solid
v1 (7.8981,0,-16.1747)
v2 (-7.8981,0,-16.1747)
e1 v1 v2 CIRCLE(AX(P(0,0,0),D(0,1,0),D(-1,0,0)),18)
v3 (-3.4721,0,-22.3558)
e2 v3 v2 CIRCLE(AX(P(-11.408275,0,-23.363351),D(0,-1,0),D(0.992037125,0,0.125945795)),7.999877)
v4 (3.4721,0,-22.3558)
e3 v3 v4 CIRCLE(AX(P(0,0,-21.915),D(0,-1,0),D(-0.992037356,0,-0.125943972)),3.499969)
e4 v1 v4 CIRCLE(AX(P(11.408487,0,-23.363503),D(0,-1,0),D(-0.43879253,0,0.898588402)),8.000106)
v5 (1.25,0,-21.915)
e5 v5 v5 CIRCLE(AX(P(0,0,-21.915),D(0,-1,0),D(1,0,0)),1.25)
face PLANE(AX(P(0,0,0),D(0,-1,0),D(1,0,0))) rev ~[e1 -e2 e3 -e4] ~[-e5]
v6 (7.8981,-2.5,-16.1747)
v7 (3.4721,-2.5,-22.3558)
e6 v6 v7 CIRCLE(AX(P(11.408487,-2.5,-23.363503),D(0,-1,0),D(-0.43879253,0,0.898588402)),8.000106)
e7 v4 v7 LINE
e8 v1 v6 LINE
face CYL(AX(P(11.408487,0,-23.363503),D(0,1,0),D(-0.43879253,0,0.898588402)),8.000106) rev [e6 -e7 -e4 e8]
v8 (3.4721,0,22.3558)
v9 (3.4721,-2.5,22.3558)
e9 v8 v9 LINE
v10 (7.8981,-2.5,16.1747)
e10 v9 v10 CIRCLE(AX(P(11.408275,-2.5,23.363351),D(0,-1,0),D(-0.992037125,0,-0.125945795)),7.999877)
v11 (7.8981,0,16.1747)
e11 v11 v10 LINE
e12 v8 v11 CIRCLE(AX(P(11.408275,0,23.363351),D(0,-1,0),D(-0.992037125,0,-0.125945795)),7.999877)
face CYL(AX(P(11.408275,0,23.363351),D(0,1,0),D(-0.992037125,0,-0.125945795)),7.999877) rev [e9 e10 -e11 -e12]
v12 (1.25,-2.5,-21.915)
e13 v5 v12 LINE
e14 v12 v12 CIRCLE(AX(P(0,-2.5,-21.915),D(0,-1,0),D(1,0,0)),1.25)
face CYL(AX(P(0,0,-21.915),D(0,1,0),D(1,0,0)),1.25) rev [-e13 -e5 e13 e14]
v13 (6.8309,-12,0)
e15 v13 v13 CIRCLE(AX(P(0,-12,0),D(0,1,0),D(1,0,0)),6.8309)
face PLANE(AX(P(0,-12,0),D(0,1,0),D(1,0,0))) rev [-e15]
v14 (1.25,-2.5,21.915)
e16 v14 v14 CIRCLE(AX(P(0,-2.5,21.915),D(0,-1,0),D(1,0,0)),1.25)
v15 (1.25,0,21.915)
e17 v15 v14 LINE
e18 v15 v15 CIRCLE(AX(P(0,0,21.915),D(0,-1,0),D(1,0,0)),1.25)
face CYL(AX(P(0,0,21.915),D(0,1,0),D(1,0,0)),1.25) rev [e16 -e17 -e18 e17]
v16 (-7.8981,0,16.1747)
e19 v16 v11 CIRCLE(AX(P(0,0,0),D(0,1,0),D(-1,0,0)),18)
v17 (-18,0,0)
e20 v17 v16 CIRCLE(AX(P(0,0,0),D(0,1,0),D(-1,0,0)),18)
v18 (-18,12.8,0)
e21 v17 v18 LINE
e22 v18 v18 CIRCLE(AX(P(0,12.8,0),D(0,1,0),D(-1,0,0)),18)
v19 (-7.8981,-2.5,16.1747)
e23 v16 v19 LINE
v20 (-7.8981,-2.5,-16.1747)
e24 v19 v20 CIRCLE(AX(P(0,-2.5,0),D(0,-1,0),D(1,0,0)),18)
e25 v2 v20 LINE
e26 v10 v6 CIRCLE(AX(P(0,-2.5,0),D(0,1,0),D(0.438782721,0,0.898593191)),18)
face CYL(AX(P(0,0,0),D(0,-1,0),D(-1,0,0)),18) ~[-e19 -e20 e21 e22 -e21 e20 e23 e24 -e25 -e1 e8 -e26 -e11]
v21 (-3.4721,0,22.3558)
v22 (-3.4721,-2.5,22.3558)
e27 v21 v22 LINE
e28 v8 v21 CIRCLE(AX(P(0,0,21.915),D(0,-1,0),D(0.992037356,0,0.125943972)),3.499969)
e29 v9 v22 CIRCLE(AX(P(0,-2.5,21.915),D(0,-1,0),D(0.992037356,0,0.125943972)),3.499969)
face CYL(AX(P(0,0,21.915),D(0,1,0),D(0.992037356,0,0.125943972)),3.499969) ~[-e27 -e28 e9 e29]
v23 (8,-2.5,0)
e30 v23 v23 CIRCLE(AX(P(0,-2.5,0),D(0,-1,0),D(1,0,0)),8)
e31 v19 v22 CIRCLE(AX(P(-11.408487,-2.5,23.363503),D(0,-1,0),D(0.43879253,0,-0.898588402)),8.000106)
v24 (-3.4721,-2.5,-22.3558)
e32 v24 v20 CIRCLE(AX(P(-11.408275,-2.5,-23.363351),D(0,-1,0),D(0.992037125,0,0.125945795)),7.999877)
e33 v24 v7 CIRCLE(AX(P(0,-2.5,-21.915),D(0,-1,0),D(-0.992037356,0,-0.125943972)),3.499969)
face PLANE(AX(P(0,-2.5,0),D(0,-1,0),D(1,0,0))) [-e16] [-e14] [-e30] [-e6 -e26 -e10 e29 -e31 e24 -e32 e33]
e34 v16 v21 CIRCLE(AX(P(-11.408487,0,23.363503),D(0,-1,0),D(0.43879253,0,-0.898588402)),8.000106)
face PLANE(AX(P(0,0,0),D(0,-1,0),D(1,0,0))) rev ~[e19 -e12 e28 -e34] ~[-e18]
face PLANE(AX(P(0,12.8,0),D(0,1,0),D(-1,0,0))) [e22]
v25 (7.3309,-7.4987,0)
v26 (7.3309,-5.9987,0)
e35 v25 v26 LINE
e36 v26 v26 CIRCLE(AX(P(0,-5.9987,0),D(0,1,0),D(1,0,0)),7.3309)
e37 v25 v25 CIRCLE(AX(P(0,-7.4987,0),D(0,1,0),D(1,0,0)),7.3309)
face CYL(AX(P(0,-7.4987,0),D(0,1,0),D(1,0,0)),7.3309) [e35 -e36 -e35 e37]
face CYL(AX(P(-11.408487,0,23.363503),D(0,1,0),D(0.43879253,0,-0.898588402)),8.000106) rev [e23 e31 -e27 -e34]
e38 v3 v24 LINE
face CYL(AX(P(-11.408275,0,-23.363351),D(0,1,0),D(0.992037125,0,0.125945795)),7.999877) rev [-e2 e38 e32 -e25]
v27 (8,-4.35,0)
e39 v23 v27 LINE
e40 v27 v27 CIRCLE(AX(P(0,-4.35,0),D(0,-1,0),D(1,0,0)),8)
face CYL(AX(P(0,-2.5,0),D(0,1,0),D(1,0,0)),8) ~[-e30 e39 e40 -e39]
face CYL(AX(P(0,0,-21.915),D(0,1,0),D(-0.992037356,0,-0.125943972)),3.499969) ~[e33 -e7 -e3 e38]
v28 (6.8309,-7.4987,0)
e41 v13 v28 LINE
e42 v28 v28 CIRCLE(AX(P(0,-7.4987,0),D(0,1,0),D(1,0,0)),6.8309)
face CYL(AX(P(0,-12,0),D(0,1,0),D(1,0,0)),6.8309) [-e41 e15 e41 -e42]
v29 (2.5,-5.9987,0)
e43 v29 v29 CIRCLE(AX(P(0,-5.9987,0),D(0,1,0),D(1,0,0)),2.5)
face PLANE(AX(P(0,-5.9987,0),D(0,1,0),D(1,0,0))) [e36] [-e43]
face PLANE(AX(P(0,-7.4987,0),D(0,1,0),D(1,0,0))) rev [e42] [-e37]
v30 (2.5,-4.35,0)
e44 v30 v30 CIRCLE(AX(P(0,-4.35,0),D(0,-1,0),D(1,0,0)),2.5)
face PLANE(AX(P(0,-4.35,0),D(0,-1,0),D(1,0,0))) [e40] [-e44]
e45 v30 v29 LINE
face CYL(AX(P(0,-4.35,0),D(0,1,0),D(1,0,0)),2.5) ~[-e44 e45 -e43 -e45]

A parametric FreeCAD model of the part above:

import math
import FreeCAD as App
import Part
import Sketcher

V = App.Vector


def add_polygon(sketch, points):
    """Adds a closed chain of lines whose ends are joined by coincident constraints."""
    first, n = sketch.GeometryCount, len(points)
    for a, b in zip(points, points[1:] + points[:1]):
        sketch.addGeometry(Part.LineSegment(App.Vector(*a, 0), App.Vector(*b, 0)), False)
    for i in range(n):
        sketch.addConstraint(Sketcher.Constraint("Coincident", first + i, 2, first + (i + 1) % n, 1))

doc = App.newDocument("Part")
body = doc.addObject("PartDesign::Body", "Body")

# Sketch on XZ plane
sketch1 = body.newObject("Sketcher::SketchObject", "Sketch")
sketch1.AttachmentSupport = (doc.getObject("XZ_Plane"), [""])
sketch1.MapMode = "FlatFace"
sketch1.addGeometry(Part.Circle(V(0, 0, 0), V(0, 0, 1), 18), False)
sketch1.addConstraint([
    Sketcher.Constraint("Coincident", 0, 3, -1, 1),
    Sketcher.Constraint("Diameter", 0, 36.0),
])
pad1 = body.newObject("PartDesign::Pad", "Pad")
pad1.Profile = sketch1
pad1.Length = 12.8
pad1.Reversed = True

# Sketch on XZ plane
sketch2 = body.newObject("Sketcher::SketchObject", "Sketch001")
sketch2.AttachmentSupport = (doc.getObject("XZ_Plane"), [""])
sketch2.MapMode = "FlatFace"
sketch2.addGeometry([
    Part.ArcOfCircle(Part.Circle(V(11.4084, 23.3634, 0), V(0, 0, 1), 8.000007), math.radians(-172.764386), math.radians(-116.026629)),  # 0
    Part.ArcOfCircle(Part.Circle(V(0, 21.915, 0), V(0, 0, 1), 3.499969), math.radians(7.235272), math.radians(172.764728)),  # 1
    Part.ArcOfCircle(Part.Circle(V(-11.4084, 23.3634, 0), V(0, 0, 1), 7.999976), math.radians(-63.973371), math.radians(-7.235614)),  # 2
    Part.ArcOfCircle(Part.Circle(V(0, 0, 0), V(0, 0, 1), 18), math.radians(116.02624), math.radians(243.97376)),  # 3
    Part.ArcOfCircle(Part.Circle(V(-11.4084, -23.3634, 0), V(0, 0, 1), 8.000007), math.radians(7.235614), math.radians(63.973371)),  # 4
    Part.ArcOfCircle(Part.Circle(V(0, -21.915, 0), V(0, 0, 1), 3.499969), math.radians(-172.764728), math.radians(-7.235272)),  # 5
    Part.ArcOfCircle(Part.Circle(V(11.4084, -23.3634, 0), V(0, 0, 1), 7.999976), math.radians(116.026629), math.radians(172.764386)),  # 6
    Part.ArcOfCircle(Part.Circle(V(0, 0, 0), V(0, 0, 1), 18), math.radians(-63.97376), math.radians(63.97376)),  # 7
    Part.Circle(V(0, 21.915, 0), V(0, 0, 1), 1.25),  # 8
    Part.Circle(V(0, -21.915, 0), V(0, 0, 1), 1.25),  # 9
], False)
sketch2.addConstraint([
    Sketcher.Constraint("Tangent", 0, 1, 1, 1),
    Sketcher.Constraint("Tangent", 1, 2, 2, 2),
    Sketcher.Constraint("Tangent", 2, 1, 3, 1),
    Sketcher.Constraint("Tangent", 3, 2, 4, 2),
    Sketcher.Constraint("Tangent", 4, 1, 5, 1),
    Sketcher.Constraint("Tangent", 5, 2, 6, 2),
    Sketcher.Constraint("Tangent", 6, 1, 7, 1),
    Sketcher.Constraint("Tangent", 7, 2, 0, 2),
    Sketcher.Constraint("Coincident", 3, 3, -1, 1),
    Sketcher.Constraint("Coincident", 7, 3, -1, 1),
    Sketcher.Constraint("Coincident", 8, 3, 1, 3),
    Sketcher.Constraint("Coincident", 9, 3, 5, 3),
    Sketcher.Constraint("Equal", 0, 2),
    Sketcher.Constraint("Equal", 2, 4),
    Sketcher.Constraint("Equal", 1, 5),
    Sketcher.Constraint("Equal", 4, 6),
    Sketcher.Constraint("Equal", 3, 7),
    Sketcher.Constraint("Equal", 8, 9),
    Sketcher.Constraint("Symmetric", 1, 3, 5, 3, -1, 1),
    Sketcher.Constraint("PointOnObject", 1, 3, -2),
    Sketcher.Constraint("Radius", 0, 8.0),
    Sketcher.Constraint("Diameter", 8, 2.5),
    Sketcher.Constraint("Radius", 1, 3.5),
    Sketcher.Constraint("Radius", 3, 18.0),
    Sketcher.Constraint("DistanceY", 5, 3, 1, 3, 43.83),
])
pad2 = body.newObject("PartDesign::Pad", "Pad001")
pad2.Profile = sketch2
pad2.Length = 2.5

# Sketch on XZ plane
sketch3 = body.newObject("Sketcher::SketchObject", "Sketch002")
sketch3.AttachmentSupport = (doc.getObject("XZ_Plane"), [""])
sketch3.MapMode = "FlatFace"
sketch3.AttachmentOffset = App.Placement(V(0, 0, 2.5), App.Rotation())
sketch3.addGeometry(Part.Circle(V(0, 0, 0), V(0, 0, 1), 8), False)
sketch3.addConstraint([
    Sketcher.Constraint("Coincident", 0, 3, -1, 1),
    Sketcher.Constraint("Diameter", 0, 16.0),
])
pad3 = body.newObject("PartDesign::Pad", "Pad002")
pad3.Profile = sketch3
pad3.Length = 1.85

# Sketch on XZ plane
sketch4 = body.newObject("Sketcher::SketchObject", "Sketch003")
sketch4.AttachmentSupport = (doc.getObject("XZ_Plane"), [""])
sketch4.MapMode = "FlatFace"
sketch4.AttachmentOffset = App.Placement(V(0, 0, 4.35), App.Rotation())
sketch4.addGeometry(Part.Circle(V(0, 0, 0), V(0, 0, 1), 2.5), False)
sketch4.addConstraint([
    Sketcher.Constraint("Coincident", 0, 3, -1, 1),
    Sketcher.Constraint("Diameter", 0, 5.0),
])
pad4 = body.newObject("PartDesign::Pad", "Pad003")
pad4.Profile = sketch4
pad4.Length = 7.65

# Sketch on XY plane
sketch5 = body.newObject("Sketcher::SketchObject", "Sketch004")
sketch5.AttachmentSupport = (doc.getObject("XY_Plane"), [""])
sketch5.MapMode = "FlatFace"
add_polygon(sketch5, [(2.5, -5.9987), (2.5, -12), (6.8309, -12), (6.8309, -7.4987), (7.3309, -7.4987), (7.3309, -5.9987)])  # lines 0-5
sketch5.addConstraint([
    Sketcher.Constraint("Vertical", 0),
    Sketcher.Constraint("Horizontal", 1),
    Sketcher.Constraint("Vertical", 2),
    Sketcher.Constraint("Horizontal", 3),
    Sketcher.Constraint("Vertical", 4),
    Sketcher.Constraint("Horizontal", 5),
    Sketcher.Constraint("DistanceX", 3, 1, 3, 2, 0.5),
    Sketcher.Constraint("DistanceY", 4, 1, 4, 2, 1.5),
    Sketcher.Constraint("DistanceY", 0, 2, -1, 1, 12.0),
    Sketcher.Constraint("DistanceX", -1, 1, 0, 2, 2.5),
    Sketcher.Constraint("DistanceX", 1, 1, 1, 2, 4.331),
    Sketcher.Constraint("DistanceY", 0, 2, 0, 1, 6.0013),
])
revolution = body.newObject("PartDesign::Revolution", "Revolution")
revolution.Profile = sketch5
revolution.ReferenceAxis = (sketch5, ["V_Axis"])
revolution.Angle = 360

doc.recompute()
